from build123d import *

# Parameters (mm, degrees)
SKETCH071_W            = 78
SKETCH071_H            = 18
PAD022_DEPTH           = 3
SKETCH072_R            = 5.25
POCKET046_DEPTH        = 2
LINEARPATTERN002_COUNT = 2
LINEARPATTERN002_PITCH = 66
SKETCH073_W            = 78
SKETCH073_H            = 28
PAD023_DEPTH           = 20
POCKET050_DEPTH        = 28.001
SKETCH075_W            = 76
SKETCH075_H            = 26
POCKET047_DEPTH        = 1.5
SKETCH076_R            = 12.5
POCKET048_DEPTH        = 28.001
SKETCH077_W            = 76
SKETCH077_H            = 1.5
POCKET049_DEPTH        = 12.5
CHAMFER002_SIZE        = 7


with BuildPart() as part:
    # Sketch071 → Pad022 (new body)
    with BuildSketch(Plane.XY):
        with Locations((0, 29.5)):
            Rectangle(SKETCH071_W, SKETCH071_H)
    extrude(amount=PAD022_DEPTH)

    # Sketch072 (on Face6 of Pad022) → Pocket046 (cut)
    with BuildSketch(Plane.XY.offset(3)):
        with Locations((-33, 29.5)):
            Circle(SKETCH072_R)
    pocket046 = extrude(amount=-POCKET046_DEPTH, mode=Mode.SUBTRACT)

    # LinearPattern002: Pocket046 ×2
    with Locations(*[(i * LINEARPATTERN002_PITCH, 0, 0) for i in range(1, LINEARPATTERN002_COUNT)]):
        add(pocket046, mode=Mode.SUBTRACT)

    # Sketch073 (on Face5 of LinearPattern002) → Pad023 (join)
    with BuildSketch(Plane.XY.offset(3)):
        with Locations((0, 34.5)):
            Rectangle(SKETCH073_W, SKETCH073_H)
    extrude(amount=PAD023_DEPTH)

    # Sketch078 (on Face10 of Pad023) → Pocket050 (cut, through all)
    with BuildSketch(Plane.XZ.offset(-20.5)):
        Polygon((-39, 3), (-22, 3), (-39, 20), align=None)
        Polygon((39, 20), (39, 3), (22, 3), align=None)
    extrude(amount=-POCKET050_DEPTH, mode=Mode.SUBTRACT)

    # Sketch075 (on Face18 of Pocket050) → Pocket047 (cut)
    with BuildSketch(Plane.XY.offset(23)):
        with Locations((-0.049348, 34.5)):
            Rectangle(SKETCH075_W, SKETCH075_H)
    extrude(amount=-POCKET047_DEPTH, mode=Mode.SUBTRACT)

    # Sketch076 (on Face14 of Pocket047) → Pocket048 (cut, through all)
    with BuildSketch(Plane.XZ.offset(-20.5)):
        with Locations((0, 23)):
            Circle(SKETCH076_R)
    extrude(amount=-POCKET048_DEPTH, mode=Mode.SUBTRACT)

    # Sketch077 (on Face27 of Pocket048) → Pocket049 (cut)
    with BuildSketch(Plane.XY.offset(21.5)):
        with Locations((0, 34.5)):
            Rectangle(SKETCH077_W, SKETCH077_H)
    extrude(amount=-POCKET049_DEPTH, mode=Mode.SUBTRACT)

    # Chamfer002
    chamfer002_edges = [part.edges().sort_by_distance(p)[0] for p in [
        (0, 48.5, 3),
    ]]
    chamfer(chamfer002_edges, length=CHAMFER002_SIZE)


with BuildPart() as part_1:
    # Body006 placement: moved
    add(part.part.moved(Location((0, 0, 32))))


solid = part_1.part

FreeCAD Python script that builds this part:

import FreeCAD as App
import Part
import Sketcher

V = App.Vector


def edges_at(feature, points):
    """Names of the edges that pass closest to the given points."""
    edges = feature.Shape.Edges
    near = lambda p: min(range(len(edges)), key=lambda i: edges[i].distToShape(Part.Vertex(*p))[0])
    return sorted({f"Edge{near(p) + 1}" for p in points})


def add_polygon(sketch, points):
    """Adds a closed chain of lines whose ends are joined by coincident constraints."""
    first, n = sketch.GeometryCount, len(points)
    for a, b in zip(points, points[1:] + points[:1]):
        sketch.addGeometry(Part.LineSegment(App.Vector(*a, 0), App.Vector(*b, 0)), False)
    for i in range(n):
        sketch.addConstraint(Sketcher.Constraint("Coincident", first + i, 2, first + (i + 1) % n, 1))

doc = App.newDocument("Part")
params = doc.addObject("Spreadsheet::Sheet", "Params")
for row, (alias, value) in enumerate([
    ("sketch1_width", "78 mm"),
    ("sketch1_height", "18 mm"),
    ("pad1_length", "3 mm"),
    ("sketch2_diameter", "10.5 mm"),
    ("pocket1_length", "2 mm"),
    ("linearpattern_pitch", "66 mm"),
    ("sketch3_width", "78 mm"),
    ("sketch3_height", "28 mm"),
    ("pad2_length", "20 mm"),
    ("sketch4_width", "17 mm"),
    ("sketch5_width", "76 mm"),
    ("sketch5_height", "26 mm"),
    ("pocket3_length", "1.5 mm"),
    ("sketch6_diameter", "25 mm"),
    ("sketch7_width", "76 mm"),
    ("sketch7_height", "1.5 mm"),
    ("pocket5_length", "12.5 mm"),
    ("chamfer_size", "7 mm"),
], start=1):
    params.set(f"A{row}", alias)
    params.set(f"B{row}", "=" + value)
    params.setAlias(f"B{row}", alias)

body = doc.addObject("PartDesign::Body", "Body")

sketch1 = body.newObject("Sketcher::SketchObject", "Sketch")
sketch1.AttachmentSupport = (doc.getObject("XY_Plane"), [""])
sketch1.MapMode = "FlatFace"
add_polygon(sketch1, [(-39, 38), (-39, 20), (39, 20), (39, 38)])
sketch1.addConstraint([
    Sketcher.Constraint("Vertical", 0),
    Sketcher.Constraint("Horizontal", 1),
    Sketcher.Constraint("Vertical", 2),
    Sketcher.Constraint("Horizontal", 3),
    Sketcher.Constraint("DistanceX", 1, 1, 1, 2, 78.0),
    Sketcher.Constraint("DistanceY", 0, 2, 0, 1, 18.0),
    Sketcher.Constraint("DistanceX", 0, 2, -1, 1, 39.0),
    Sketcher.Constraint("DistanceY", -1, 1, 0, 2, 20.5),
])
sketch1.setExpression("Constraints[8]", "Params.sketch1_width")
sketch1.setExpression("Constraints[9]", "Params.sketch1_height")
pad1 = body.newObject("PartDesign::Pad", "Pad")
pad1.Profile = sketch1
pad1.setExpression("Length", "Params.pad1_length")

sketch2 = body.newObject("Sketcher::SketchObject", "Sketch001")
sketch2.AttachmentSupport = (doc.getObject("XY_Plane"), [""])
sketch2.MapMode = "FlatFace"
sketch2.AttachmentOffset = App.Placement(V(0, 0, 3), App.Rotation())
sketch2.addGeometry(Part.Circle(V(-33, 30, 0), V(0, 0, 1), 5), False)
sketch2.addConstraint([
    Sketcher.Constraint("Diameter", 0, 10.5),
    Sketcher.Constraint("DistanceX", 0, 3, -1, 1, 33.0),
    Sketcher.Constraint("DistanceY", -1, 1, 0, 3, 29.5),
])
sketch2.setExpression("Constraints[0]", "Params.sketch2_diameter")
pocket1 = body.newObject("PartDesign::Pocket", "Pocket")
pocket1.Profile = sketch2
pocket1.setExpression("Length", "Params.pocket1_length")
doc.recompute()

linearpattern = body.newObject("PartDesign::LinearPattern", "LinearPattern")
linearpattern.Originals = [pocket1]
linearpattern.Direction = (doc.getObject("X_Axis"), [""])
linearpattern.Mode = "offset"
linearpattern.setExpression("Offset", "Params.linearpattern_pitch")
linearpattern.Occurrences = 2
body.Tip = linearpattern

sketch3 = body.newObject("Sketcher::SketchObject", "Sketch002")
sketch3.AttachmentSupport = (doc.getObject("XY_Plane"), [""])
sketch3.MapMode = "FlatFace"
sketch3.AttachmentOffset = App.Placement(V(0, 0, 3), App.Rotation())
add_polygon(sketch3, [(-39, 48), (-39, 20), (39, 20), (39, 48)])
sketch3.addConstraint([
    Sketcher.Constraint("Vertical", 0),
    Sketcher.Constraint("Horizontal", 1),
    Sketcher.Constraint("Vertical", 2),
    Sketcher.Constraint("Horizontal", 3),
    Sketcher.Constraint("DistanceX", 1, 1, 1, 2, 78.0),
    Sketcher.Constraint("DistanceY", 0, 2, 0, 1, 28.0),
    Sketcher.Constraint("DistanceX", 0, 2, -1, 1, 39.0),
    Sketcher.Constraint("DistanceY", -1, 1, 0, 2, 20.5),
])
sketch3.setExpression("Constraints[8]", "Params.sketch3_width")
sketch3.setExpression("Constraints[9]", "Params.sketch3_height")
pad2 = body.newObject("PartDesign::Pad", "Pad001")
pad2.Profile = sketch3
pad2.setExpression("Length", "Params.pad2_length")

sketch4 = body.newObject("Sketcher::SketchObject", "Sketch003")
sketch4.AttachmentSupport = (doc.getObject("XZ_Plane"), [""])
sketch4.MapMode = "FlatFace"
sketch4.AttachmentOffset = App.Placement(V(0, 0, -20.5), App.Rotation())
add_polygon(sketch4, [(-39, 3), (-22, 3), (-39, 20)])
add_polygon(sketch4, [(39, 3), (39, 20), (22, 3)])
sketch4.addConstraint([
    Sketcher.Constraint("Horizontal", 0),
    Sketcher.Constraint("Vertical", 2),
    Sketcher.Constraint("Vertical", 3),
    Sketcher.Constraint("Horizontal", 5),
    Sketcher.Constraint("Symmetric", 1, 2, 3, 2, -2),
    Sketcher.Constraint("Symmetric", 0, 2, 4, 2, -2),
    Sketcher.Constraint("Perpendicular", 1, 4),
    Sketcher.Constraint("DistanceX", 0, 1, 0, 2, 17.0),
    Sketcher.Constraint("DistanceX", 0, 2, -1, 1, 22.0),
    Sketcher.Constraint("DistanceY", -1, 1, 0, 2, 3.0),
])
sketch4.setExpression("Constraints[13]", "Params.sketch4_width")
pocket2 = body.newObject("PartDesign::Pocket", "Pocket001")
pocket2.Profile = sketch4
pocket2.Type = "ThroughAll"

sketch5 = body.newObject("Sketcher::SketchObject", "Sketch004")
sketch5.AttachmentSupport = (doc.getObject("XY_Plane"), [""])
sketch5.MapMode = "FlatFace"
sketch5.AttachmentOffset = App.Placement(V(0, 0, 23), App.Rotation())
add_polygon(sketch5, [(-38, 48), (-38, 22), (38, 22), (38, 48)])
sketch5.addConstraint([
    Sketcher.Constraint("Vertical", 0),
    Sketcher.Constraint("Horizontal", 1),
    Sketcher.Constraint("Vertical", 2),
    Sketcher.Constraint("Horizontal", 3),
    Sketcher.Constraint("DistanceX", 1, 1, 1, 2, 76.0),
    Sketcher.Constraint("DistanceY", 0, 2, 0, 1, 26.0),
    Sketcher.Constraint("DistanceY", -1, 1, 0, 2, 21.5),
    Sketcher.Constraint("DistanceX", 0, 2, -1, 1, 38.049348),
])
sketch5.setExpression("Constraints[8]", "Params.sketch5_width")
sketch5.setExpression("Constraints[9]", "Params.sketch5_height")
pocket3 = body.newObject("PartDesign::Pocket", "Pocket002")
pocket3.Profile = sketch5
pocket3.setExpression("Length", "Params.pocket3_length")

sketch6 = body.newObject("Sketcher::SketchObject", "Sketch005")
sketch6.AttachmentSupport = (doc.getObject("XZ_Plane"), [""])
sketch6.MapMode = "FlatFace"
sketch6.AttachmentOffset = App.Placement(V(0, 0, -20.5), App.Rotation())
sketch6.addGeometry(Part.Circle(V(0, 23, 0), V(0, 0, 1), 12), False)
sketch6.addConstraint([
    Sketcher.Constraint("PointOnObject", 0, 3, -2),
    Sketcher.Constraint("Diameter", 0, 25.0),
    Sketcher.Constraint("DistanceY", -1, 1, 0, 3, 23.0),
])
sketch6.setExpression("Constraints[1]", "Params.sketch6_diameter")
pocket4 = body.newObject("PartDesign::Pocket", "Pocket003")
pocket4.Profile = sketch6
pocket4.Type = "ThroughAll"

sketch7 = body.newObject("Sketcher::SketchObject", "Sketch006")
sketch7.AttachmentSupport = (doc.getObject("XY_Plane"), [""])
sketch7.MapMode = "FlatFace"
sketch7.AttachmentOffset = App.Placement(V(0, 0, 21.5), App.Rotation())
add_polygon(sketch7, [(-38, 35.2), (-38, 33.8), (38, 33.8), (38, 35.2)])
sketch7.addConstraint([
    Sketcher.Constraint("Vertical", 0),
    Sketcher.Constraint("Horizontal", 1),
    Sketcher.Constraint("Vertical", 2),
    Sketcher.Constraint("Horizontal", 3),
    Sketcher.Constraint("DistanceX", 1, 1, 1, 2, 76.0),
    Sketcher.Constraint("DistanceY", 0, 2, 0, 1, 1.5),
    Sketcher.Constraint("DistanceX", 0, 2, -1, 1, 38.0),
    Sketcher.Constraint("DistanceY", -1, 1, 0, 2, 33.75),
])
sketch7.setExpression("Constraints[8]", "Params.sketch7_width")
sketch7.setExpression("Constraints[9]", "Params.sketch7_height")
pocket5 = body.newObject("PartDesign::Pocket", "Pocket004")
pocket5.Profile = sketch7
pocket5.setExpression("Length", "Params.pocket5_length")
doc.recompute()

chamfer = body.newObject("PartDesign::Chamfer", "Chamfer")
chamfer.Base = (pocket5, edges_at(pocket5, [(0, 48.5, 3)]))
chamfer.setExpression("Size", "Params.chamfer_size")
body2 = doc.addObject("PartDesign::Body", "Body001")
doc.recompute()

body.Placement = App.Placement(V(0, 0, 32), App.Rotation(V(0, 0, 1), 0))
boolean = body2.newObject("PartDesign::Boolean", "Boolean")
boolean.Type = "Fuse"
boolean.addObjects([body])

doc.recompute()
